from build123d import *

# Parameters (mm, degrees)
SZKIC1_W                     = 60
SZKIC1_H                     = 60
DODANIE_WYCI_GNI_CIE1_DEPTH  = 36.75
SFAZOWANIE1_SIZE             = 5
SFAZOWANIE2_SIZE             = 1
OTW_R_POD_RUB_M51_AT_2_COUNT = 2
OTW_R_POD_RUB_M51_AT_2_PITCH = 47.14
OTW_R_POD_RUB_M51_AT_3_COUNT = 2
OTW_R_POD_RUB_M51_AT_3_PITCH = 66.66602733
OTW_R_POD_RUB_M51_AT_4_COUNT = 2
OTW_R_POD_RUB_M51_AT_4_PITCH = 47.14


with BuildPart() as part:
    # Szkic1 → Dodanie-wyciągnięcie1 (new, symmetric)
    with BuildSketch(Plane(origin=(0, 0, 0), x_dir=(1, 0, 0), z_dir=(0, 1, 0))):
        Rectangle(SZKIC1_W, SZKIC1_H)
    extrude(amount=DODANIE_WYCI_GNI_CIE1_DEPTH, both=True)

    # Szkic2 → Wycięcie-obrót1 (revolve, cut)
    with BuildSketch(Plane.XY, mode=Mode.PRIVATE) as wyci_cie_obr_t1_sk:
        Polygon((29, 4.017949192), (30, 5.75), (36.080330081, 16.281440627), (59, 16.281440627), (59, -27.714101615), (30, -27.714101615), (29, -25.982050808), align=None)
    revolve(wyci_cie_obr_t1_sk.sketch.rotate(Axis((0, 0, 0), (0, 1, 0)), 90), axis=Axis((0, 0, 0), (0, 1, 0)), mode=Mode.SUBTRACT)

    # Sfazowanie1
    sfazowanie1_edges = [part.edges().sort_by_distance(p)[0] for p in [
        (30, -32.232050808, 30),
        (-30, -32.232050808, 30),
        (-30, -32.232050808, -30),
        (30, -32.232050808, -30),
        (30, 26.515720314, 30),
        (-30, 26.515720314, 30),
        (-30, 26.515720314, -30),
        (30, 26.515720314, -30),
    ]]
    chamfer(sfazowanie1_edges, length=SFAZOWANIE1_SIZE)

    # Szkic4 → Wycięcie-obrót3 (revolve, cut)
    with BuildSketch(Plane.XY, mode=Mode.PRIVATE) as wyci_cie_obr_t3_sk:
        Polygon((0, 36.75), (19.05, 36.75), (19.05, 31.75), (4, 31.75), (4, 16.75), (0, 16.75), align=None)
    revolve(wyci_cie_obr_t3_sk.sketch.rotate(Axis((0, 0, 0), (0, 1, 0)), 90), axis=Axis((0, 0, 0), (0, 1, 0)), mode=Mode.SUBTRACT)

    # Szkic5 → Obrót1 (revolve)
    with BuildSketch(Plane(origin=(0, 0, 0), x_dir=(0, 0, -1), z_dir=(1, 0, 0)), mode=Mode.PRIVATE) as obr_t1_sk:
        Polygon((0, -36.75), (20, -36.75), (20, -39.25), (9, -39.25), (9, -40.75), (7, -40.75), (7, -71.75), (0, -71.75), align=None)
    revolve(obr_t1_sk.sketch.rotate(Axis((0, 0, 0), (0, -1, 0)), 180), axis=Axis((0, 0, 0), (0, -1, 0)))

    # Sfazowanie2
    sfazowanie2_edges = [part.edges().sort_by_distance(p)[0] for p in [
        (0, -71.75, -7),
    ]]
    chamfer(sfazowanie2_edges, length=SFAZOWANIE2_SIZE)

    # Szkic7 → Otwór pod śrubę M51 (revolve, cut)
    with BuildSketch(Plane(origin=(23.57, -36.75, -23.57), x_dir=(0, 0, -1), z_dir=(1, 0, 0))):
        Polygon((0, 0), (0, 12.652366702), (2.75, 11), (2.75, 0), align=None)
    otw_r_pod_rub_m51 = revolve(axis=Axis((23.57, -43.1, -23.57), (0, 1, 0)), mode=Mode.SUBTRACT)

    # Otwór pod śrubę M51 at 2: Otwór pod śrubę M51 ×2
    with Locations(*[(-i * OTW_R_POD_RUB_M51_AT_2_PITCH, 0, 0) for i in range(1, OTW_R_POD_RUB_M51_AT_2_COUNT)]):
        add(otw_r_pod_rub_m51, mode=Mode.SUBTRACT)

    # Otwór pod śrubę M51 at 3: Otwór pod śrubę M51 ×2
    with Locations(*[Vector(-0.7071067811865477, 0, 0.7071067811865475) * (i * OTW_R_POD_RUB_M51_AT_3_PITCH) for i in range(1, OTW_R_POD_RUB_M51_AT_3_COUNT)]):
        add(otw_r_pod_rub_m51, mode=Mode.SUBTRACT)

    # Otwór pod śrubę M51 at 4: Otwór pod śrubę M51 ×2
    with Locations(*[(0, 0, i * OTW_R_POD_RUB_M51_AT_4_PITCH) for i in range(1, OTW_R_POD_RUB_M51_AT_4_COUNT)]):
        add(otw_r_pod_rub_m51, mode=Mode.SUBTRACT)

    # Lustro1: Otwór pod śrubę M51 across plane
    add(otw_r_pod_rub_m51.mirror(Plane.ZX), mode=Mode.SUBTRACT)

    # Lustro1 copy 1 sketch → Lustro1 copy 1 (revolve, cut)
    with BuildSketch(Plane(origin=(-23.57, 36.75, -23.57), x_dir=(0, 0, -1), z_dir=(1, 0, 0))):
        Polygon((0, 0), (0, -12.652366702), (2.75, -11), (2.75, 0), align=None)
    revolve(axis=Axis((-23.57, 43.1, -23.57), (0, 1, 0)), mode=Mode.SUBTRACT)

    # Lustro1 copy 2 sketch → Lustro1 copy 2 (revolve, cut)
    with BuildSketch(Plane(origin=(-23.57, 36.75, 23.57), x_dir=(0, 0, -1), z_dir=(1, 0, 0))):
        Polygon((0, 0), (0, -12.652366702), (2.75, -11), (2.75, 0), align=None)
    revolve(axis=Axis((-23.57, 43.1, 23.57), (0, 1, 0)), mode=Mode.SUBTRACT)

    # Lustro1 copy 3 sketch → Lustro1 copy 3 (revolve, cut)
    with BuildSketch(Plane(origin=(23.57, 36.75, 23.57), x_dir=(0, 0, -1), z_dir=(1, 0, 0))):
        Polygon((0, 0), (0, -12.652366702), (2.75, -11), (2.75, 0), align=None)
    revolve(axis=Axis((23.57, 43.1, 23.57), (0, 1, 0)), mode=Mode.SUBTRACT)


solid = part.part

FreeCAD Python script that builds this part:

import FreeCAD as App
import Part
import Sketcher
from FreeCAD import Vector
Q = App.Units.Quantity


def edges_at(feature, points):
    """Names of the edges that pass closest to the given points."""
    edges = feature.Shape.Edges
    near = lambda p: min(range(len(edges)), key=lambda i: edges[i].distToShape(Part.Vertex(*p))[0])
    return sorted({f"Edge{near(p) + 1}" for p in points})

doc = App.newDocument("Part")
body = doc.addObject("PartDesign::Body", "Body")

# Sketch on XZ plane
sketch1 = body.newObject("Sketcher::SketchObject", "Sketch")
sketch1.AttachmentSupport = (doc.getObject("XZ_Plane"), [""])
sketch1.MapMode = "FlatFace"
sketch1.addGeometry([
    Part.LineSegment(Vector(-30, -30, 0), Vector(-30, 30, 0)),
    Part.LineSegment(Vector(-30, 30, 0), Vector(30, 30, 0)),
    Part.LineSegment(Vector(30, 30, 0), Vector(30, -30, 0)),
    Part.LineSegment(Vector(30, -30, 0), Vector(-30, -30, 0)),
], False)
sketch1.addConstraint([
    Sketcher.Constraint("Coincident", 0, 2, 1, 1),
    Sketcher.Constraint("Coincident", 1, 2, 2, 1),
    Sketcher.Constraint("Coincident", 2, 2, 3, 1),
    Sketcher.Constraint("Coincident", 3, 2, 0, 1),
    Sketcher.Constraint("Vertical", 0),
    Sketcher.Constraint("Horizontal", 1),
    Sketcher.Constraint("Vertical", 2),
    Sketcher.Constraint("Horizontal", 3),
    Sketcher.Constraint("Symmetric", 0, 2, 2, 2, -1, 1),
    Sketcher.Constraint("Equal", 3, 0),
    Sketcher.Constraint("DistanceX", 1, 1, 1, 2, 60.0),
])
pad1 = body.newObject("PartDesign::Pad", "Pad")
pad1.Profile = sketch1
pad1.Length = 73.5
pad1.Midplane = True

# Sketch on XY plane
sketch2 = body.newObject("Sketcher::SketchObject", "Sketch001")
sketch2.AttachmentSupport = (doc.getObject("XY_Plane"), [""])
sketch2.MapMode = "FlatFace"
sketch2.addGeometry([
    Part.LineSegment(Vector(30, 5.8, 0), Vector(29, 4, 0)),  # 0
    Part.LineSegment(Vector(29, 4, 0), Vector(29, -26, 0)),  # 1
    Part.LineSegment(Vector(29, -26, 0), Vector(30, -27.7, 0)),  # 2
    Part.LineSegment(Vector(30, -27.7, 0), Vector(59, -27.7, 0)),  # 3
    Part.LineSegment(Vector(59, -27.7, 0), Vector(59, 16.3, 0)),  # 4
    Part.LineSegment(Vector(59, 16.3, 0), Vector(36.1, 16.3, 0)),  # 5
    Part.LineSegment(Vector(36.1, 16.3, 0), Vector(30, 5.8, 0)),  # 6
], False)
sketch2.addConstraint([
    Sketcher.Constraint("Coincident", 0, 2, 1, 1),
    Sketcher.Constraint("Coincident", 1, 2, 2, 1),
    Sketcher.Constraint("Coincident", 2, 2, 3, 1),
    Sketcher.Constraint("Coincident", 3, 2, 4, 1),
    Sketcher.Constraint("Coincident", 4, 2, 5, 1),
    Sketcher.Constraint("Coincident", 5, 2, 6, 1),
    Sketcher.Constraint("Coincident", 6, 2, 0, 1),
    Sketcher.Constraint("Vertical", 1),
    Sketcher.Constraint("Horizontal", 3),
    Sketcher.Constraint("Vertical", 4),
    Sketcher.Constraint("Horizontal", 5),
    Sketcher.Constraint("Parallel", 0, 6),
    Sketcher.Constraint("Vertical", 2, 2, 6, 2),
    Sketcher.Constraint("Equal", 0, 2),
    Sketcher.Constraint("DistanceX", 3, 1, 3, 2, 29.0),
    Sketcher.Constraint("DistanceY", 1, 2, 1, 1, 30.0),
    Sketcher.Constraint("Angle", 0, Q("-120 deg")),
    Sketcher.Constraint("Distance", 0, 2.0),
    Sketcher.Constraint("DistanceX", -1, 1, 0, 2, 29.0),
    Sketcher.Constraint("DistanceY", -1, 1, 6, 2, 5.75),
    Sketcher.Constraint("DistanceX", 5, 2, 5, 1, 22.91967),
])
groove = body.newObject("PartDesign::Groove", "Groove")
groove.Profile = sketch2
groove.ReferenceAxis = (sketch2, ["V_Axis"])
groove.Angle = 360
doc.recompute()

chamfer = body.newObject("PartDesign::Chamfer", "Chamfer")
chamfer.Base = (groove, edges_at(groove, [
    (30, -32.232, 30),
    (-30, -32.232, 30),
    (-30, -32.232, -30),
    (30, -32.232, -30),
    (30, 26.516, 30),
    (-30, 26.516, 30),
    (-30, 26.516, -30),
    (30, 26.516, -30),
]))
chamfer.Size = 5

# Sketch on XY plane
sketch3 = body.newObject("Sketcher::SketchObject", "Sketch002")
sketch3.AttachmentSupport = (doc.getObject("XY_Plane"), [""])
sketch3.MapMode = "FlatFace"
sketch3.addGeometry([
    Part.LineSegment(Vector(19.1, 36.8, 0), Vector(0, 36.8, 0)),  # 0
    Part.LineSegment(Vector(0, 36.8, 0), Vector(0, 16.8, 0)),  # 1
    Part.LineSegment(Vector(0, 16.8, 0), Vector(4, 16.8, 0)),  # 2
    Part.LineSegment(Vector(4, 16.8, 0), Vector(4, 31.8, 0)),  # 3
    Part.LineSegment(Vector(4, 31.8, 0), Vector(19.1, 31.8, 0)),  # 4
    Part.LineSegment(Vector(19.1, 31.8, 0), Vector(19.1, 36.8, 0)),  # 5
], False)
sketch3.addConstraint([
    Sketcher.Constraint("Coincident", 0, 2, 1, 1),
    Sketcher.Constraint("Coincident", 1, 2, 2, 1),
    Sketcher.Constraint("Coincident", 2, 2, 3, 1),
    Sketcher.Constraint("Coincident", 3, 2, 4, 1),
    Sketcher.Constraint("Coincident", 4, 2, 5, 1),
    Sketcher.Constraint("Coincident", 5, 2, 0, 1),
    Sketcher.Constraint("Horizontal", 0),
    Sketcher.Constraint("Vertical", 1),
    Sketcher.Constraint("Horizontal", 2),
    Sketcher.Constraint("Vertical", 3),
    Sketcher.Constraint("Horizontal", 4),
    Sketcher.Constraint("Vertical", 5),
    Sketcher.Constraint("PointOnObject", 0, 2, -2),
    Sketcher.Constraint("DistanceX", 2, 1, 2, 2, 4.0),
    Sketcher.Constraint("DistanceY", 1, 2, 1, 1, 20.0),
    Sketcher.Constraint("DistanceY", 3, 1, 3, 2, 15.0),
    Sketcher.Constraint("DistanceX", 0, 2, 0, 1, 19.05),
    Sketcher.Constraint("DistanceY", -1, 1, 0, 2, 36.75),
])
groove2 = body.newObject("PartDesign::Groove", "Groove001")
groove2.Profile = sketch3
groove2.ReferenceAxis = (sketch3, ["V_Axis"])
groove2.Angle = 360

# Sketch on YZ plane
sketch4 = body.newObject("Sketcher::SketchObject", "Sketch003")
sketch4.AttachmentSupport = (doc.getObject("YZ_Plane"), [""])
sketch4.MapMode = "FlatFace"
sketch4.addGeometry([
    Part.LineSegment(Vector(-36.8, -20, 0), Vector(-36.8, 0, 0)),  # 0
    Part.LineSegment(Vector(-36.8, 0, 0), Vector(-71.8, 0, 0)),  # 1
    Part.LineSegment(Vector(-71.8, 0, 0), Vector(-71.8, -7, 0)),  # 2
    Part.LineSegment(Vector(-71.8, -7, 0), Vector(-40.8, -7, 0)),  # 3
    Part.LineSegment(Vector(-40.8, -7, 0), Vector(-40.8, -9, 0)),  # 4
    Part.LineSegment(Vector(-40.8, -9, 0), Vector(-39.2, -9, 0)),  # 5
    Part.LineSegment(Vector(-39.2, -9, 0), Vector(-39.2, -20, 0)),  # 6
    Part.LineSegment(Vector(-39.2, -20, 0), Vector(-36.8, -20, 0)),  # 7
], False)
sketch4.addConstraint([
    Sketcher.Constraint("Coincident", 0, 2, 1, 1),
    Sketcher.Constraint("Coincident", 1, 2, 2, 1),
    Sketcher.Constraint("Coincident", 2, 2, 3, 1),
    Sketcher.Constraint("Coincident", 3, 2, 4, 1),
    Sketcher.Constraint("Coincident", 4, 2, 5, 1),
    Sketcher.Constraint("Coincident", 5, 2, 6, 1),
    Sketcher.Constraint("Coincident", 6, 2, 7, 1),
    Sketcher.Constraint("Coincident", 7, 2, 0, 1),
    Sketcher.Constraint("Vertical", 0),
    Sketcher.Constraint("Horizontal", 1),
    Sketcher.Constraint("Vertical", 2),
    Sketcher.Constraint("Horizontal", 3),
    Sketcher.Constraint("Vertical", 4),
    Sketcher.Constraint("Horizontal", 5),
    Sketcher.Constraint("Vertical", 6),
    Sketcher.Constraint("Horizontal", 7),
    Sketcher.Constraint("PointOnObject", 0, 2, -1),
    Sketcher.Constraint("DistanceX", 1, 2, 1, 1, 35.0),
    Sketcher.Constraint("DistanceX", 3, 1, 3, 2, 31.0),
    Sketcher.Constraint("DistanceY", 0, 1, 0, 2, 20.0),
    Sketcher.Constraint("DistanceY", 2, 2, 2, 1, 7.0),
    Sketcher.Constraint("DistanceY", 4, 2, 4, 1, 2.0),
    Sketcher.Constraint("DistanceX", 5, 1, 5, 2, 1.5),
    Sketcher.Constraint("DistanceX", 0, 2, -1, 1, 36.75),
])
revolution = body.newObject("PartDesign::Revolution", "Revolution")
revolution.Profile = sketch4
revolution.ReferenceAxis = (sketch4, ["H_Axis"])
revolution.Angle = 360
doc.recompute()

chamfer2 = body.newObject("PartDesign::Chamfer", "Chamfer001")
chamfer2.Base = (revolution, edges_at(revolution, [(0, -71.75, -7)]))
chamfer2.Size = 1

# Sketch on YZ plane
sketch5 = body.newObject("Sketcher::SketchObject", "Sketch004")
sketch5.AttachmentSupport = (doc.getObject("YZ_Plane"), [""])
sketch5.MapMode = "FlatFace"
sketch5.AttachmentOffset = App.Placement(Vector(0, 0, 23.57), App.Rotation())
sketch5.addGeometry([
    Part.LineSegment(Vector(-24.1, -23.6, 0), Vector(-36.8, -23.6, 0)),
    Part.LineSegment(Vector(-36.8, -23.6, 0), Vector(-36.8, -26.3, 0)),
    Part.LineSegment(Vector(-36.8, -26.3, 0), Vector(-25.8, -26.3, 0)),
    Part.LineSegment(Vector(-25.8, -26.3, 0), Vector(-24.1, -23.6, 0)),
], False)
sketch5.addGeometry(Part.LineSegment(Vector(-36.8, -23.6, 0), Vector(-24.1, -23.6, 0)), True)  # axis
sketch5.addConstraint([
    Sketcher.Constraint("Coincident", 0, 2, 1, 1),
    Sketcher.Constraint("Coincident", 1, 2, 2, 1),
    Sketcher.Constraint("Coincident", 2, 2, 3, 1),
    Sketcher.Constraint("Coincident", 3, 2, 0, 1),
    Sketcher.Constraint("Horizontal", 0),
    Sketcher.Constraint("Vertical", 1),
    Sketcher.Constraint("Horizontal", 2),
    Sketcher.Constraint("Horizontal", 4),
    Sketcher.Constraint("Coincident", 4, 1, 0, 2),
    Sketcher.Constraint("Equal", 0, 4),
    Sketcher.Constraint("DistanceX", 2, 1, 2, 2, 11.0),
    Sketcher.Constraint("Angle", 3, Q("59 deg")),
    Sketcher.Constraint("DistanceY", 1, 2, 1, 1, 2.75),
    Sketcher.Constraint("DistanceX", 0, 2, -1, 1, 36.75),
    Sketcher.Constraint("DistanceY", 0, 2, -1, 1, 23.57),
])
groove3 = body.newObject("PartDesign::Groove", "Groove002")
groove3.Profile = sketch5
groove3.ReferenceAxis = (sketch5, ["Axis0"])
groove3.Angle = 360
doc.recompute()

linearpattern = body.newObject("PartDesign::LinearPattern", "LinearPattern")
linearpattern.Originals = [groove3]
linearpattern.Direction = (doc.getObject("X_Axis"), [""])
linearpattern.Mode = "offset"
linearpattern.Offset = 47.14
linearpattern.Occurrences = 2
linearpattern.Reversed = True
body.Tip = linearpattern
doc.recompute()

datumline = body.newObject("PartDesign::Line", "DatumLine")
datumline.Placement = App.Placement(Vector(0, 0, 0), App.Rotation(Vector(0, 0, 1), Vector(-0.707106781, 0, 0.707106781)))
linearpattern2 = body.newObject("PartDesign::LinearPattern", "LinearPattern001")
linearpattern2.Originals = [groove3]
linearpattern2.Direction = (datumline, [""])
linearpattern2.Mode = "offset"
linearpattern2.Offset = 66.666027
linearpattern2.Occurrences = 2
body.Tip = linearpattern2
doc.recompute()

linearpattern3 = body.newObject("PartDesign::LinearPattern", "LinearPattern002")
linearpattern3.Originals = [groove3]
linearpattern3.Direction = (doc.getObject("Z_Axis"), [""])
linearpattern3.Mode = "offset"
linearpattern3.Offset = 47.14
linearpattern3.Occurrences = 2
body.Tip = linearpattern3
doc.recompute()

mirrored = body.newObject("PartDesign::Mirrored", "Mirrored")
mirrored.Originals = [groove3]
mirrored.MirrorPlane = (doc.getObject("XZ_Plane"), [""])
body.Tip = mirrored

# Sketch on YZ plane
sketch6 = body.newObject("Sketcher::SketchObject", "Sketch005")
sketch6.AttachmentSupport = (doc.getObject("YZ_Plane"), [""])
sketch6.MapMode = "FlatFace"
sketch6.AttachmentOffset = App.Placement(Vector(0, 0, -23.57), App.Rotation())
sketch6.addGeometry([
    Part.LineSegment(Vector(36.8, -23.6, 0), Vector(24.1, -23.6, 0)),
    Part.LineSegment(Vector(24.1, -23.6, 0), Vector(25.8, -26.3, 0)),
    Part.LineSegment(Vector(25.8, -26.3, 0), Vector(36.8, -26.3, 0)),
    Part.LineSegment(Vector(36.8, -26.3, 0), Vector(36.8, -23.6, 0)),
], False)
sketch6.addGeometry(Part.LineSegment(Vector(24.1, -23.6, 0), Vector(36.8, -23.6, 0)), True)  # axis
sketch6.addConstraint([
    Sketcher.Constraint("Coincident", 0, 2, 1, 1),
    Sketcher.Constraint("Coincident", 1, 2, 2, 1),
    Sketcher.Constraint("Coincident", 2, 2, 3, 1),
    Sketcher.Constraint("Coincident", 3, 2, 0, 1),
    Sketcher.Constraint("Horizontal", 0),
    Sketcher.Constraint("Horizontal", 2),
    Sketcher.Constraint("Vertical", 3),
    Sketcher.Constraint("Horizontal", 4),
    Sketcher.Constraint("Coincident", 4, 1, 0, 2),
    Sketcher.Constraint("Vertical", 2, 2, 4, 2),
    Sketcher.Constraint("DistanceX", 2, 1, 2, 2, 11.0),
    Sketcher.Constraint("Angle", 1, Q("-59 deg")),
    Sketcher.Constraint("DistanceY", 3, 1, 3, 2, 2.75),
    Sketcher.Constraint("DistanceY", 0, 2, -1, 1, 23.57),
    Sketcher.Constraint("DistanceX", -1, 1, 1, 2, 25.75),
])
groove4 = body.newObject("PartDesign::Groove", "Groove003")
groove4.Profile = sketch6
groove4.ReferenceAxis = (sketch6, ["Axis0"])
groove4.Angle = 360

# Sketch on YZ plane
sketch7 = body.newObject("Sketcher::SketchObject", "Sketch006")
sketch7.AttachmentSupport = (doc.getObject("YZ_Plane"), [""])
sketch7.MapMode = "FlatFace"
sketch7.AttachmentOffset = App.Placement(Vector(0, 0, -23.57), App.Rotation())
sketch7.addGeometry([
    Part.LineSegment(Vector(36.8, 23.6, 0), Vector(24.1, 23.6, 0)),
    Part.LineSegment(Vector(24.1, 23.6, 0), Vector(25.8, 20.8, 0)),
    Part.LineSegment(Vector(25.8, 20.8, 0), Vector(36.8, 20.8, 0)),
    Part.LineSegment(Vector(36.8, 20.8, 0), Vector(36.8, 23.6, 0)),
], False)
sketch7.addGeometry(Part.LineSegment(Vector(24.1, 23.6, 0), Vector(36.8, 23.6, 0)), True)  # axis
sketch7.addConstraint([
    Sketcher.Constraint("Coincident", 0, 2, 1, 1),
    Sketcher.Constraint("Coincident", 1, 2, 2, 1),
    Sketcher.Constraint("Coincident", 2, 2, 3, 1),
    Sketcher.Constraint("Coincident", 3, 2, 0, 1),
    Sketcher.Constraint("Horizontal", 0),
    Sketcher.Constraint("Horizontal", 2),
    Sketcher.Constraint("Vertical", 3),
    Sketcher.Constraint("Horizontal", 4),
    Sketcher.Constraint("Coincident", 4, 1, 0, 2),
    Sketcher.Constraint("Vertical", 2, 2, 4, 2),
    Sketcher.Constraint("DistanceX", 2, 1, 2, 2, 11.0),
    Sketcher.Constraint("Angle", 1, Q("-59 deg")),
    Sketcher.Constraint("DistanceY", 3, 1, 3, 2, 2.75),
    Sketcher.Constraint("DistanceY", -1, 1, 0, 2, 23.57),
    Sketcher.Constraint("DistanceX", -1, 1, 1, 2, 25.75),
])
groove5 = body.newObject("PartDesign::Groove", "Groove004")
groove5.Profile = sketch7
groove5.ReferenceAxis = (sketch7, ["Axis0"])
groove5.Angle = 360

# Sketch on YZ plane
sketch8 = body.newObject("Sketcher::SketchObject", "Sketch007")
sketch8.AttachmentSupport = (doc.getObject("YZ_Plane"), [""])
sketch8.MapMode = "FlatFace"
sketch8.AttachmentOffset = App.Placement(Vector(0, 0, 23.57), App.Rotation())
sketch8.addGeometry([
    Part.LineSegment(Vector(36.8, 23.6, 0), Vector(24.1, 23.6, 0)),
    Part.LineSegment(Vector(24.1, 23.6, 0), Vector(25.8, 20.8, 0)),
    Part.LineSegment(Vector(25.8, 20.8, 0), Vector(36.8, 20.8, 0)),
    Part.LineSegment(Vector(36.8, 20.8, 0), Vector(36.8, 23.6, 0)),
], False)
sketch8.addGeometry(Part.LineSegment(Vector(24.1, 23.6, 0), Vector(36.8, 23.6, 0)), True)  # axis
sketch8.addConstraint([
    Sketcher.Constraint("Coincident", 0, 2, 1, 1),
    Sketcher.Constraint("Coincident", 1, 2, 2, 1),
    Sketcher.Constraint("Coincident", 2, 2, 3, 1),
    Sketcher.Constraint("Coincident", 3, 2, 0, 1),
    Sketcher.Constraint("Horizontal", 0),
    Sketcher.Constraint("Horizontal", 2),
    Sketcher.Constraint("Vertical", 3),
    Sketcher.Constraint("Horizontal", 4),
    Sketcher.Constraint("Coincident", 4, 1, 0, 2),
    Sketcher.Constraint("Vertical", 2, 2, 4, 2),
    Sketcher.Constraint("DistanceX", 2, 1, 2, 2, 11.0),
    Sketcher.Constraint("Angle", 1, Q("-59 deg")),
    Sketcher.Constraint("DistanceY", 3, 1, 3, 2, 2.75),
    Sketcher.Constraint("DistanceY", -1, 1, 0, 2, 23.57),
    Sketcher.Constraint("DistanceX", -1, 1, 1, 2, 25.75),
])
groove6 = body.newObject("PartDesign::Groove", "Groove005")
groove6.Profile = sketch8
groove6.ReferenceAxis = (sketch8, ["Axis0"])
groove6.Angle = 360

doc.recompute()
